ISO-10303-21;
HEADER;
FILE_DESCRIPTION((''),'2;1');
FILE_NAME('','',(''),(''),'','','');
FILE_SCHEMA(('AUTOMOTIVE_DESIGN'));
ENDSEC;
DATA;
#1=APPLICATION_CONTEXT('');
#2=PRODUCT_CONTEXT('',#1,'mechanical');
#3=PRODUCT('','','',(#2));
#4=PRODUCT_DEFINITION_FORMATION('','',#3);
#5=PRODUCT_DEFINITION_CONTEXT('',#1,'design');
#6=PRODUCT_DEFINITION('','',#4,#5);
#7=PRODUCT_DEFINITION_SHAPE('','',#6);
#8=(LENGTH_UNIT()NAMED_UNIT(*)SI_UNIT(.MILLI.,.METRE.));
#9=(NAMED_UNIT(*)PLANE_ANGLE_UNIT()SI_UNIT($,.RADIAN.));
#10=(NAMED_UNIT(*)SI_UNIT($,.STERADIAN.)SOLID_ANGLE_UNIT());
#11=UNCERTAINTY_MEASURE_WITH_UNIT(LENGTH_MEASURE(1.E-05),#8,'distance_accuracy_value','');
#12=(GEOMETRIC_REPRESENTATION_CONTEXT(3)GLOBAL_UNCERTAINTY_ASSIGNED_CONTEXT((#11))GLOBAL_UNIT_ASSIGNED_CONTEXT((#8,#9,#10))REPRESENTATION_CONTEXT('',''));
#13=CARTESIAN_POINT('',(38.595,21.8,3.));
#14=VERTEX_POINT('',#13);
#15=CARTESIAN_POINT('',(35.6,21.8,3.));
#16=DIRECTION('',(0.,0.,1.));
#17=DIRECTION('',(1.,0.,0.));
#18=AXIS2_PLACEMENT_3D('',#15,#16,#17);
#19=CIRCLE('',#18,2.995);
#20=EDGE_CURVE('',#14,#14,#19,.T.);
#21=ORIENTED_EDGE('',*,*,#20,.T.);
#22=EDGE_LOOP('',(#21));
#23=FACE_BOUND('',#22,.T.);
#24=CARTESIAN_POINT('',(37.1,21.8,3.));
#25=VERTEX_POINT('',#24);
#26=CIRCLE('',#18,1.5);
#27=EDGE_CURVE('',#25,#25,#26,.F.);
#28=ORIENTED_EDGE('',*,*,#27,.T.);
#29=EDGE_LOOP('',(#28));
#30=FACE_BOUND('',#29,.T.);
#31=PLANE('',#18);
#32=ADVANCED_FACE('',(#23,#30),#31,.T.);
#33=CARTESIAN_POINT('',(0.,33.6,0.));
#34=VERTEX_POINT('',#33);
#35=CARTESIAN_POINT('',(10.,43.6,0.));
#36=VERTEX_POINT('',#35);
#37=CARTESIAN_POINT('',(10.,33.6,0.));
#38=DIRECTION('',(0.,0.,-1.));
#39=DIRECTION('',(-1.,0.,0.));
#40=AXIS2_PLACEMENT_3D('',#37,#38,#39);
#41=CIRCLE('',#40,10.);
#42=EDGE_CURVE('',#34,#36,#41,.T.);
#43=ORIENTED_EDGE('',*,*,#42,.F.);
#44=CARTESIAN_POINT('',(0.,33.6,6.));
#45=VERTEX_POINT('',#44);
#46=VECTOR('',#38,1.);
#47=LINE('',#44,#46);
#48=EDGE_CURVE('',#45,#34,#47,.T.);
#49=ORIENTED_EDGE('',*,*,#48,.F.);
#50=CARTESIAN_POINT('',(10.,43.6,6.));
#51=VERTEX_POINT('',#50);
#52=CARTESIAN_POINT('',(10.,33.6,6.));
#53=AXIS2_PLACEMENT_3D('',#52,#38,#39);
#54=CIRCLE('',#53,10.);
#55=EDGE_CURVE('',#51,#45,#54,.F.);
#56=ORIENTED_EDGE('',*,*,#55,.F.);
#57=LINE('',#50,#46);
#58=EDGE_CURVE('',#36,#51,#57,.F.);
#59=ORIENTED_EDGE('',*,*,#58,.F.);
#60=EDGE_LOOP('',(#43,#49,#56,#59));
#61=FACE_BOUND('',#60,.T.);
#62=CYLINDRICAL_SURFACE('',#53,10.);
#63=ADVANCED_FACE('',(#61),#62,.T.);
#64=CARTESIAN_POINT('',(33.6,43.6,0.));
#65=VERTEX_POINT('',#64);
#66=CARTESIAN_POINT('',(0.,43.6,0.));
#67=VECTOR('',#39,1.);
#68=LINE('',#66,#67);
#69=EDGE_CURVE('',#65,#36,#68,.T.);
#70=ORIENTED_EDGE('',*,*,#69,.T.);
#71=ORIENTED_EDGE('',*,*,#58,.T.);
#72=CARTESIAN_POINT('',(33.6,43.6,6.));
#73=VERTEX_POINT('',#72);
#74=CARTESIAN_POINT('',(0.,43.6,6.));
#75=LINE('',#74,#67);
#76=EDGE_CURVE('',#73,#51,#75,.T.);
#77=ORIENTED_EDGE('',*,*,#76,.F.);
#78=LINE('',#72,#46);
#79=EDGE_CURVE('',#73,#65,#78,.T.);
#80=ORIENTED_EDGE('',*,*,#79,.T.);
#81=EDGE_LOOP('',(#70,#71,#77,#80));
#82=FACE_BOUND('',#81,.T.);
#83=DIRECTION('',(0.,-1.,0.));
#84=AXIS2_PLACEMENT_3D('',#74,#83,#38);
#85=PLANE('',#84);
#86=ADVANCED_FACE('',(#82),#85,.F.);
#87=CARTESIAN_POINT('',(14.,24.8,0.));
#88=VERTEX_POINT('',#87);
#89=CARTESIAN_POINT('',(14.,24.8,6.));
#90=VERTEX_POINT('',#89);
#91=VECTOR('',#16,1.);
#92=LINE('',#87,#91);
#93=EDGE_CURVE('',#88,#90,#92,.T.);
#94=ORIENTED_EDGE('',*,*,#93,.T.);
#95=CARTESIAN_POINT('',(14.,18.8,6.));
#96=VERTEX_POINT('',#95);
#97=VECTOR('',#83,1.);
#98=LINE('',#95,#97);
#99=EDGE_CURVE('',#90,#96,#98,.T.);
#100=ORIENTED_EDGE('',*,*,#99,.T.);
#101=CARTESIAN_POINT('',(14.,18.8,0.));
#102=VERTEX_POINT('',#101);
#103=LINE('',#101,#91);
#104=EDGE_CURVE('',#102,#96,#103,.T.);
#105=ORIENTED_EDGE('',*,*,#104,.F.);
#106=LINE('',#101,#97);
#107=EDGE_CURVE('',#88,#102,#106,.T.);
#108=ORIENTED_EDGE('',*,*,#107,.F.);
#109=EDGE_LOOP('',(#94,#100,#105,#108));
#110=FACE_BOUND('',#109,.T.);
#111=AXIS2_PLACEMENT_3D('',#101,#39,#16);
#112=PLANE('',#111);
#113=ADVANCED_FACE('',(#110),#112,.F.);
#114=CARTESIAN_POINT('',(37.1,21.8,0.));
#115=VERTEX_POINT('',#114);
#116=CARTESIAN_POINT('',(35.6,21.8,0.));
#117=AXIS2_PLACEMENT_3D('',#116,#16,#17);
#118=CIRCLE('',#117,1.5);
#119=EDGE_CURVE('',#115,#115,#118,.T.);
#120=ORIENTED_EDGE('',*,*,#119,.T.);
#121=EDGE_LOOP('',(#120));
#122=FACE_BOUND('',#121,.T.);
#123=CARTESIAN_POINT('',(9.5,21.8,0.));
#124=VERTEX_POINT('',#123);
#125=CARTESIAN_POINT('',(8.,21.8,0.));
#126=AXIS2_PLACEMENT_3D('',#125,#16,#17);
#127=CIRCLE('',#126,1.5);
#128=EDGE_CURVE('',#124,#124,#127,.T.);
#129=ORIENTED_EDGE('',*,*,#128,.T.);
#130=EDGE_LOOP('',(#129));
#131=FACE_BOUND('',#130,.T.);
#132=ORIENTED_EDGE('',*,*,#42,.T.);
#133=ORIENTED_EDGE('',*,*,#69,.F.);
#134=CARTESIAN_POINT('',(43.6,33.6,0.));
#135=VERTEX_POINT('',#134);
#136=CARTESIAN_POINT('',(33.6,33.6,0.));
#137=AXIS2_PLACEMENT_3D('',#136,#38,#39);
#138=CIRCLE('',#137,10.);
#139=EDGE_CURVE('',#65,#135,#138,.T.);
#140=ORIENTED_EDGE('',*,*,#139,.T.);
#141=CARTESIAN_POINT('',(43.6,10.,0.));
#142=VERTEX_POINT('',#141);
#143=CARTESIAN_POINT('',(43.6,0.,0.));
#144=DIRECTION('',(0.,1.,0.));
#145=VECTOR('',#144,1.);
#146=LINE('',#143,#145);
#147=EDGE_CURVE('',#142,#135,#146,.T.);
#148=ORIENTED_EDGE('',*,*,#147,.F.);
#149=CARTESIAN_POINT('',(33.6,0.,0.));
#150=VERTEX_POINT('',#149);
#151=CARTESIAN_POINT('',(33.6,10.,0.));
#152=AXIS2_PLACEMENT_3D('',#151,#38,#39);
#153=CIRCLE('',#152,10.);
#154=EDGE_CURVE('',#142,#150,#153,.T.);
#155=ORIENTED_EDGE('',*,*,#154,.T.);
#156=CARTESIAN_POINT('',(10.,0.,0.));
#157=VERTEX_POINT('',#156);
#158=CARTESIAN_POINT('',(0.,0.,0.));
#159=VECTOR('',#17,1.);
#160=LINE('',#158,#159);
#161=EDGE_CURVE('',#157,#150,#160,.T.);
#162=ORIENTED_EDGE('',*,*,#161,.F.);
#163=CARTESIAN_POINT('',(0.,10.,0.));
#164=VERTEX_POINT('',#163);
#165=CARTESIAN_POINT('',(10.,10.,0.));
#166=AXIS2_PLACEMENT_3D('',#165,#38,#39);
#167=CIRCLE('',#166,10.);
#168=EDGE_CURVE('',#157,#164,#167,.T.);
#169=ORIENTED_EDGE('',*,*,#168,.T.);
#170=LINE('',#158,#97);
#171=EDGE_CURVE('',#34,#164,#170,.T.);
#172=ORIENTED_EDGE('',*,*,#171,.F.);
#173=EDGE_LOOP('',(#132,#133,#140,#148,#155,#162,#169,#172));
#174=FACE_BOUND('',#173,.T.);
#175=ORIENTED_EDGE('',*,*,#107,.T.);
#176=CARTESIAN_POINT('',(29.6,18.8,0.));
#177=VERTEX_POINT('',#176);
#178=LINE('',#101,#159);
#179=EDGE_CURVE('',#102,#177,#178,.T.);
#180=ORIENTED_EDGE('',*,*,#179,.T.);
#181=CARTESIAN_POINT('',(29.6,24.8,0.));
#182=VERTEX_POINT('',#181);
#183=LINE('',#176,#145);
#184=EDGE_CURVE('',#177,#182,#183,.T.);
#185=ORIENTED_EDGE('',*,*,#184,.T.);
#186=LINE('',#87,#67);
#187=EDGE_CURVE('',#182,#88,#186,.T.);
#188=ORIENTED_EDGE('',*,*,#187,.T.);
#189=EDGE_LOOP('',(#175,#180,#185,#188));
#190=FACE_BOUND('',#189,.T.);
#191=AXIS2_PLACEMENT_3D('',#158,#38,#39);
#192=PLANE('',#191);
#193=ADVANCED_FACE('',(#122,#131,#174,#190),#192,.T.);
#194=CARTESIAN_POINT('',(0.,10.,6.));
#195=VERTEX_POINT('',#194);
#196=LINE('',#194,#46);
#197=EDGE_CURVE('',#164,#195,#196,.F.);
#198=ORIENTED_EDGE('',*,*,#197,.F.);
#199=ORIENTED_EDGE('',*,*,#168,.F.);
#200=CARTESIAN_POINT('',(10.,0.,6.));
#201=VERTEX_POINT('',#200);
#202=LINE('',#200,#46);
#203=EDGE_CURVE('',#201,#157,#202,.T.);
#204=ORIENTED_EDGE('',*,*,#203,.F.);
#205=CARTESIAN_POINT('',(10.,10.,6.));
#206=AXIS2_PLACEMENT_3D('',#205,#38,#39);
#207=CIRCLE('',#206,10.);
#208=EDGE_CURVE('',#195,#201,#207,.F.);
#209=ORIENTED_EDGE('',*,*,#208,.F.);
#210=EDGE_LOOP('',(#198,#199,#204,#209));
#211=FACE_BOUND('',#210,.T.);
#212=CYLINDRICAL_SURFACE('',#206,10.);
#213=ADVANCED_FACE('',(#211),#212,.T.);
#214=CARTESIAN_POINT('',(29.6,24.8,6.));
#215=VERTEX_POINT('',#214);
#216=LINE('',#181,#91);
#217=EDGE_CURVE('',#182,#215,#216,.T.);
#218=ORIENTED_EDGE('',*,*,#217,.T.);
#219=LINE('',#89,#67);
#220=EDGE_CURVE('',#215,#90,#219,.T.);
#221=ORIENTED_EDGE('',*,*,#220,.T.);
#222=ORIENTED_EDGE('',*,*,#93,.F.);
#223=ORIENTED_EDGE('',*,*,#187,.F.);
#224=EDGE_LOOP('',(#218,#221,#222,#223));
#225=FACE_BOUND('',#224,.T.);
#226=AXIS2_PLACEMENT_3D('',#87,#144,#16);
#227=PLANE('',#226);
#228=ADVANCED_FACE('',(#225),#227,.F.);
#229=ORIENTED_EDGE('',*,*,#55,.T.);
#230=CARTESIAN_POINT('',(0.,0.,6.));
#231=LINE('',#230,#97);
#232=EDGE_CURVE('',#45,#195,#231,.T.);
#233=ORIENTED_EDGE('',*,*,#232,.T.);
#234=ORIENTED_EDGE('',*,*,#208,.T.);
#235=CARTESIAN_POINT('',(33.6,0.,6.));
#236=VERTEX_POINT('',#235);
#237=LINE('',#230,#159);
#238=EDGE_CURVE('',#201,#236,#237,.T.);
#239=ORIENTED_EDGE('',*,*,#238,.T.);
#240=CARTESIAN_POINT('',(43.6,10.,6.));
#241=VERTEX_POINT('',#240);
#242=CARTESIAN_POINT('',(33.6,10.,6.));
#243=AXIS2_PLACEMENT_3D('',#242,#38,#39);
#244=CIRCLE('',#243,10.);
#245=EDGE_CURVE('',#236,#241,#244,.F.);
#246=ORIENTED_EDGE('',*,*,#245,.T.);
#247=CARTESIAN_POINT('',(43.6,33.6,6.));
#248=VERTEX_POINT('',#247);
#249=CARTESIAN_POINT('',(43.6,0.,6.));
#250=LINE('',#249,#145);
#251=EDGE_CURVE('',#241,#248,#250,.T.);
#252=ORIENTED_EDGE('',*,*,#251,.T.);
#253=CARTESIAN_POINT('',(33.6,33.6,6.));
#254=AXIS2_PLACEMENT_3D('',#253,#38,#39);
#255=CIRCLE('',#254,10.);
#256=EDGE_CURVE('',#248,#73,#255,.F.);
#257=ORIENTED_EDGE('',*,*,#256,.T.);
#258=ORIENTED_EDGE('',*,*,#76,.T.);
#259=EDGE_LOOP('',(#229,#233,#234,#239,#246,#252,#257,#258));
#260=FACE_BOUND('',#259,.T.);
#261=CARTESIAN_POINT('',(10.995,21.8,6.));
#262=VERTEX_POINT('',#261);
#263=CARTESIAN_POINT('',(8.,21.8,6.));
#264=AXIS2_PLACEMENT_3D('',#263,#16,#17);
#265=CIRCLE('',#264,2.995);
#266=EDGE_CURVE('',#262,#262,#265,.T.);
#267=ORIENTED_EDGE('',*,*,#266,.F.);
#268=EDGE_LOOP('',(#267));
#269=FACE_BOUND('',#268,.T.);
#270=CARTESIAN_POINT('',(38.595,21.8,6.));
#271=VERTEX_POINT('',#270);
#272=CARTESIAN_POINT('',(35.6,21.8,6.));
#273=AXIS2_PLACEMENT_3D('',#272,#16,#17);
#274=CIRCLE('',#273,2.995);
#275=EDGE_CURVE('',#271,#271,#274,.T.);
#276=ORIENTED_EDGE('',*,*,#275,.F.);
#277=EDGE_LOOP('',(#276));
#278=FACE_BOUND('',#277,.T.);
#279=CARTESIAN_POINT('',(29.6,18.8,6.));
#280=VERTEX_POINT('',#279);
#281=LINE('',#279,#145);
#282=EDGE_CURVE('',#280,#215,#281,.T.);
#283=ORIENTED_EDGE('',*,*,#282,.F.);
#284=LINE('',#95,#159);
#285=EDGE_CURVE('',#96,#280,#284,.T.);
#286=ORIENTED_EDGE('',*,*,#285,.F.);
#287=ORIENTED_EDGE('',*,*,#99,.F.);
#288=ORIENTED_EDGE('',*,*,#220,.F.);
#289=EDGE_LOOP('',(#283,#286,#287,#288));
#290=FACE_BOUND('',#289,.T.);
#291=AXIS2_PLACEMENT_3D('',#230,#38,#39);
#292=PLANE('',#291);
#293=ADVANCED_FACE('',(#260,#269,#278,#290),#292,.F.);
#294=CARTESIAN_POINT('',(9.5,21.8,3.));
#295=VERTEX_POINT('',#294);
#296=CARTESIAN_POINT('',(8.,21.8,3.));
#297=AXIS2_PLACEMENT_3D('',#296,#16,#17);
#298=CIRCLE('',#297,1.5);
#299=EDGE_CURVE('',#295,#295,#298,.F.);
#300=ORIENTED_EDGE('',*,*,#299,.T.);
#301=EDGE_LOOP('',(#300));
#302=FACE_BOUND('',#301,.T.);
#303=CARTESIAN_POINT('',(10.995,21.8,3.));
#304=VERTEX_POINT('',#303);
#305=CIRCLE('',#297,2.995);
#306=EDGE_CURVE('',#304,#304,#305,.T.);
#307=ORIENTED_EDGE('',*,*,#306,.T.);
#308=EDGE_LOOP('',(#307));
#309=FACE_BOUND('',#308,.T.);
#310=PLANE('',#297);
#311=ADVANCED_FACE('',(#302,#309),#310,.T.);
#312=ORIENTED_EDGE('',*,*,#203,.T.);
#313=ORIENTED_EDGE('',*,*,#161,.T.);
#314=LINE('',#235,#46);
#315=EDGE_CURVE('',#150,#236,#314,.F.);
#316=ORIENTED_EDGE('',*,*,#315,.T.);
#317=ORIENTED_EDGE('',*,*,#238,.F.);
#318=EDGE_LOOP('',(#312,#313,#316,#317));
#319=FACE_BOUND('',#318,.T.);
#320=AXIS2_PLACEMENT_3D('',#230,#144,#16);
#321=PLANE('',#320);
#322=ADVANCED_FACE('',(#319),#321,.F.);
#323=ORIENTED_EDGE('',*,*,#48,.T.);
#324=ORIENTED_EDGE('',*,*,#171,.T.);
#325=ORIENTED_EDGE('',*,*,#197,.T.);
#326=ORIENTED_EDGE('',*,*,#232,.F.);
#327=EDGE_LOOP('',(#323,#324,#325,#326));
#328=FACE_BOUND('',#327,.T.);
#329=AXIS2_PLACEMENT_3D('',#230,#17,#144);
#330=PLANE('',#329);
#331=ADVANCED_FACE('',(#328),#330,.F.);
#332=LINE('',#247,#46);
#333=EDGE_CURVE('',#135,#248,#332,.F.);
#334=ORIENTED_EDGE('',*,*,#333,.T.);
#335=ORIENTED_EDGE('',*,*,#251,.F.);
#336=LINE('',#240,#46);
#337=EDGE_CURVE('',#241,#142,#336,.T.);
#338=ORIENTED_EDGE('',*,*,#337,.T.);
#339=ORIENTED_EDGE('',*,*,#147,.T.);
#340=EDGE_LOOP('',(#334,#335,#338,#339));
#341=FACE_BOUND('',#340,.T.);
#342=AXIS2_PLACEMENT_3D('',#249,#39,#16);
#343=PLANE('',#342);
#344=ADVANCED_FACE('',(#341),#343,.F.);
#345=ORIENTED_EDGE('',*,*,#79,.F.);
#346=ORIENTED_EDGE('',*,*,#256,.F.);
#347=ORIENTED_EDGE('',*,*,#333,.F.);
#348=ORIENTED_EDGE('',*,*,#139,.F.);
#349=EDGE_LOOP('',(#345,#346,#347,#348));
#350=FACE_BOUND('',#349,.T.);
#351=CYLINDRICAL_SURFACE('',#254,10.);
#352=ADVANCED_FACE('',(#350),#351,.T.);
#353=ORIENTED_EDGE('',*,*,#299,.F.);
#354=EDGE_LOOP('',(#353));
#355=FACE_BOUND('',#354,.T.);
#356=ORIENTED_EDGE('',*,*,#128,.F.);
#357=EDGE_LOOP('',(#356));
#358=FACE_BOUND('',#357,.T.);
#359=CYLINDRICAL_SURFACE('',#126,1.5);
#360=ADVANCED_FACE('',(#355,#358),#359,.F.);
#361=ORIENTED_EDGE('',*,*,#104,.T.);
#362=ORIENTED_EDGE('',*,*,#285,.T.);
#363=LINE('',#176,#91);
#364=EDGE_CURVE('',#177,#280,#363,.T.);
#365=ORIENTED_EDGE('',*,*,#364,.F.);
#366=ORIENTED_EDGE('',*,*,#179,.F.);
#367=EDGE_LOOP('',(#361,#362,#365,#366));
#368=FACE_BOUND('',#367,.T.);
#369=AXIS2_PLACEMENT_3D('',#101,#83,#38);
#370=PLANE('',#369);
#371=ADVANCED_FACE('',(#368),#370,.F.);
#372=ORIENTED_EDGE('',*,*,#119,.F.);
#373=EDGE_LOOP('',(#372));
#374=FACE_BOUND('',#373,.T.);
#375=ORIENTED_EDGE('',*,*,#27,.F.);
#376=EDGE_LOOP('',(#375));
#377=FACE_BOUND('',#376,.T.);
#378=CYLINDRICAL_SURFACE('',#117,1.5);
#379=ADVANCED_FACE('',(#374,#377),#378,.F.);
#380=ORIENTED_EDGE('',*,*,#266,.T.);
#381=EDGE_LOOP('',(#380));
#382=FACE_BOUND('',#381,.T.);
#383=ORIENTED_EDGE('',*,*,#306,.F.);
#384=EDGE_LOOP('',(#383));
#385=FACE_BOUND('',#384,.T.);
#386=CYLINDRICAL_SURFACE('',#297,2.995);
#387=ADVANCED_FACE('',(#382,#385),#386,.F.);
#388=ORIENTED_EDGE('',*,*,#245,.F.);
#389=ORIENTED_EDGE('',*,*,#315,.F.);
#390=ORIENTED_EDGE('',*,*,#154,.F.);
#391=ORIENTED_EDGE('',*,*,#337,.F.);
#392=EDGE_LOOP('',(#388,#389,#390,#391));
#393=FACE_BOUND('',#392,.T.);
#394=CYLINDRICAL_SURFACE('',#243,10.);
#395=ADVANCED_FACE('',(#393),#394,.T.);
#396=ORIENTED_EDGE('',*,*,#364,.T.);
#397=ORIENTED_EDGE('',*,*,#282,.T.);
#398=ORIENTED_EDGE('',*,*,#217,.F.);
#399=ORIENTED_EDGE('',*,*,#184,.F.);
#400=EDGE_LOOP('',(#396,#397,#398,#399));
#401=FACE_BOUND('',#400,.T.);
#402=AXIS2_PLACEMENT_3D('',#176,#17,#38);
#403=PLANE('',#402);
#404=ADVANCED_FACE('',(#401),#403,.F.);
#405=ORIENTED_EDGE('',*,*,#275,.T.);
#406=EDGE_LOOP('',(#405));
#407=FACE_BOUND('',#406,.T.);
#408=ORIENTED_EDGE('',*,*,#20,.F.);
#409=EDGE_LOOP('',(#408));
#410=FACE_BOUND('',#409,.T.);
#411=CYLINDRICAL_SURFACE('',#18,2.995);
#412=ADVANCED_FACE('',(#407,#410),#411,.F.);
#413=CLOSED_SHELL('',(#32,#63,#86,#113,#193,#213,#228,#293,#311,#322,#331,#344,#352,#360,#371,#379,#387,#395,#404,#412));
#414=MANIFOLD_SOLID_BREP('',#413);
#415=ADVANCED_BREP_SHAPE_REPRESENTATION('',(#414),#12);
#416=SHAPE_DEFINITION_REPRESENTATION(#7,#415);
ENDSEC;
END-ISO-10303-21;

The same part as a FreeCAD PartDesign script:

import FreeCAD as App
import Part
import Sketcher

V = App.Vector


def edges_at(feature, points):
    """Names of the edges that pass closest to the given points."""
    edges = feature.Shape.Edges
    near = lambda p: min(range(len(edges)), key=lambda i: edges[i].distToShape(Part.Vertex(*p))[0])
    return sorted({f"Edge{near(p) + 1}" for p in points})


def add_polygon(sketch, points):
    """Adds a closed chain of lines whose ends are joined by coincident constraints."""
    first, n = sketch.GeometryCount, len(points)
    for a, b in zip(points, points[1:] + points[:1]):
        sketch.addGeometry(Part.LineSegment(App.Vector(*a, 0), App.Vector(*b, 0)), False)
    for i in range(n):
        sketch.addConstraint(Sketcher.Constraint("Coincident", first + i, 2, first + (i + 1) % n, 1))

doc = App.newDocument("Part")
body = doc.addObject("PartDesign::Body", "Body")

# Sketch on XY plane
sketch1 = body.newObject("Sketcher::SketchObject", "Sketch")
sketch1.AttachmentSupport = (doc.getObject("XY_Plane"), [""])
sketch1.MapMode = "FlatFace"
add_polygon(sketch1, [(0, 43.6), (0, 0), (43.6, 0), (43.6, 43.6)])  # lines 0-3
sketch1.addConstraint(Sketcher.Constraint("Vertical", 0))
sketch1.addConstraint(Sketcher.Constraint("Horizontal", 1))
sketch1.addConstraint(Sketcher.Constraint("Vertical", 2))
sketch1.addConstraint(Sketcher.Constraint("Horizontal", 3))
sketch1.addConstraint(Sketcher.Constraint("Coincident", 0, 2, -1, 1))
sketch1.addConstraint(Sketcher.Constraint("Equal", 3, 0))
sketch1.addConstraint(Sketcher.Constraint("DistanceX", 1, 1, 1, 2, 43.6))
pad1 = body.newObject("PartDesign::Pad", "Pad")
pad1.Profile = sketch1
pad1.Length = 6
doc.recompute()

fillet = body.newObject("PartDesign::Fillet", "Fillet")
fillet.Base = (pad1, edges_at(pad1, [
    (0, 43.6, 3),
    (43.6, 43.6, 3),
    (43.6, 0, 3),
    (0, 0, 3),
]))
fillet.Radius = 10

# Sketch on XY plane
sketch2 = body.newObject("Sketcher::SketchObject", "Sketch001")
sketch2.AttachmentSupport = (doc.getObject("XY_Plane"), [""])
sketch2.MapMode = "FlatFace"
sketch2.AttachmentOffset = App.Placement(V(0, 0, 6), App.Rotation())
sketch2.addGeometry(Part.Circle(V(8, 21.8, 0), V(0, 0, 1), 1.5), False)  # 0
sketch2.addGeometry(Part.Circle(V(35.6, 21.8, 0), V(0, 0, 1), 1.5), False)  # 1
add_polygon(sketch2, [(14, 24.8), (14, 18.8), (29.6, 18.8), (29.6, 24.8)])  # lines 2-5
sketch2.addConstraint(Sketcher.Constraint("Vertical", 2))
sketch2.addConstraint(Sketcher.Constraint("Horizontal", 3))
sketch2.addConstraint(Sketcher.Constraint("Vertical", 4))
sketch2.addConstraint(Sketcher.Constraint("Horizontal", 5))
sketch2.addConstraint(Sketcher.Constraint("Equal", 0, 1))
sketch2.addConstraint(Sketcher.Constraint("Horizontal", 0, 3, 1, 3))
sketch2.addConstraint(Sketcher.Constraint("Diameter", 0, 3.0))
sketch2.addConstraint(Sketcher.Constraint("DistanceY", 2, 2, 2, 1, 6.0))
sketch2.addConstraint(Sketcher.Constraint("DistanceX", 3, 1, 3, 2, 15.6))
sketch2.addConstraint(Sketcher.Constraint("DistanceX", -1, 1, 0, 3, 8.0))
sketch2.addConstraint(Sketcher.Constraint("DistanceX", -1, 1, 2, 2, 14.0))
sketch2.addConstraint(Sketcher.Constraint("DistanceY", 2, 2, 0, 3, 3.0))
sketch2.addConstraint(Sketcher.Constraint("DistanceX", 3, 2, 1, 3, 6.0))
sketch2.addConstraint(Sketcher.Constraint("DistanceY", -1, 1, 0, 3, 21.8))
pocket1 = body.newObject("PartDesign::Pocket", "Pocket")
pocket1.Profile = sketch2
pocket1.Length = 6

# Sketch on XY plane
sketch3 = body.newObject("Sketcher::SketchObject", "Sketch002")
sketch3.AttachmentSupport = (doc.getObject("XY_Plane"), [""])
sketch3.MapMode = "FlatFace"
sketch3.AttachmentOffset = App.Placement(V(0, 0, 6), App.Rotation())
sketch3.addGeometry(Part.Circle(V(8, 21.8, 0), V(0, 0, 1), 2.995), False)
sketch3.addGeometry(Part.Circle(V(35.6, 21.8, 0), V(0, 0, 1), 2.995), False)
sketch3.addConstraint(Sketcher.Constraint("Equal", 0, 1))
sketch3.addConstraint(Sketcher.Constraint("Horizontal", 0, 3, 1, 3))
sketch3.addConstraint(Sketcher.Constraint("Diameter", 0, 5.99))
sketch3.addConstraint(Sketcher.Constraint("DistanceX", -1, 1, 0, 3, 8.0))
sketch3.addConstraint(Sketcher.Constraint("DistanceY", -1, 1, 0, 3, 21.8))
sketch3.addConstraint(Sketcher.Constraint("DistanceX", -1, 1, 1, 3, 35.6))
pocket2 = body.newObject("PartDesign::Pocket", "Pocket001")
pocket2.Profile = sketch3
pocket2.Length = 3

doc.recompute()
